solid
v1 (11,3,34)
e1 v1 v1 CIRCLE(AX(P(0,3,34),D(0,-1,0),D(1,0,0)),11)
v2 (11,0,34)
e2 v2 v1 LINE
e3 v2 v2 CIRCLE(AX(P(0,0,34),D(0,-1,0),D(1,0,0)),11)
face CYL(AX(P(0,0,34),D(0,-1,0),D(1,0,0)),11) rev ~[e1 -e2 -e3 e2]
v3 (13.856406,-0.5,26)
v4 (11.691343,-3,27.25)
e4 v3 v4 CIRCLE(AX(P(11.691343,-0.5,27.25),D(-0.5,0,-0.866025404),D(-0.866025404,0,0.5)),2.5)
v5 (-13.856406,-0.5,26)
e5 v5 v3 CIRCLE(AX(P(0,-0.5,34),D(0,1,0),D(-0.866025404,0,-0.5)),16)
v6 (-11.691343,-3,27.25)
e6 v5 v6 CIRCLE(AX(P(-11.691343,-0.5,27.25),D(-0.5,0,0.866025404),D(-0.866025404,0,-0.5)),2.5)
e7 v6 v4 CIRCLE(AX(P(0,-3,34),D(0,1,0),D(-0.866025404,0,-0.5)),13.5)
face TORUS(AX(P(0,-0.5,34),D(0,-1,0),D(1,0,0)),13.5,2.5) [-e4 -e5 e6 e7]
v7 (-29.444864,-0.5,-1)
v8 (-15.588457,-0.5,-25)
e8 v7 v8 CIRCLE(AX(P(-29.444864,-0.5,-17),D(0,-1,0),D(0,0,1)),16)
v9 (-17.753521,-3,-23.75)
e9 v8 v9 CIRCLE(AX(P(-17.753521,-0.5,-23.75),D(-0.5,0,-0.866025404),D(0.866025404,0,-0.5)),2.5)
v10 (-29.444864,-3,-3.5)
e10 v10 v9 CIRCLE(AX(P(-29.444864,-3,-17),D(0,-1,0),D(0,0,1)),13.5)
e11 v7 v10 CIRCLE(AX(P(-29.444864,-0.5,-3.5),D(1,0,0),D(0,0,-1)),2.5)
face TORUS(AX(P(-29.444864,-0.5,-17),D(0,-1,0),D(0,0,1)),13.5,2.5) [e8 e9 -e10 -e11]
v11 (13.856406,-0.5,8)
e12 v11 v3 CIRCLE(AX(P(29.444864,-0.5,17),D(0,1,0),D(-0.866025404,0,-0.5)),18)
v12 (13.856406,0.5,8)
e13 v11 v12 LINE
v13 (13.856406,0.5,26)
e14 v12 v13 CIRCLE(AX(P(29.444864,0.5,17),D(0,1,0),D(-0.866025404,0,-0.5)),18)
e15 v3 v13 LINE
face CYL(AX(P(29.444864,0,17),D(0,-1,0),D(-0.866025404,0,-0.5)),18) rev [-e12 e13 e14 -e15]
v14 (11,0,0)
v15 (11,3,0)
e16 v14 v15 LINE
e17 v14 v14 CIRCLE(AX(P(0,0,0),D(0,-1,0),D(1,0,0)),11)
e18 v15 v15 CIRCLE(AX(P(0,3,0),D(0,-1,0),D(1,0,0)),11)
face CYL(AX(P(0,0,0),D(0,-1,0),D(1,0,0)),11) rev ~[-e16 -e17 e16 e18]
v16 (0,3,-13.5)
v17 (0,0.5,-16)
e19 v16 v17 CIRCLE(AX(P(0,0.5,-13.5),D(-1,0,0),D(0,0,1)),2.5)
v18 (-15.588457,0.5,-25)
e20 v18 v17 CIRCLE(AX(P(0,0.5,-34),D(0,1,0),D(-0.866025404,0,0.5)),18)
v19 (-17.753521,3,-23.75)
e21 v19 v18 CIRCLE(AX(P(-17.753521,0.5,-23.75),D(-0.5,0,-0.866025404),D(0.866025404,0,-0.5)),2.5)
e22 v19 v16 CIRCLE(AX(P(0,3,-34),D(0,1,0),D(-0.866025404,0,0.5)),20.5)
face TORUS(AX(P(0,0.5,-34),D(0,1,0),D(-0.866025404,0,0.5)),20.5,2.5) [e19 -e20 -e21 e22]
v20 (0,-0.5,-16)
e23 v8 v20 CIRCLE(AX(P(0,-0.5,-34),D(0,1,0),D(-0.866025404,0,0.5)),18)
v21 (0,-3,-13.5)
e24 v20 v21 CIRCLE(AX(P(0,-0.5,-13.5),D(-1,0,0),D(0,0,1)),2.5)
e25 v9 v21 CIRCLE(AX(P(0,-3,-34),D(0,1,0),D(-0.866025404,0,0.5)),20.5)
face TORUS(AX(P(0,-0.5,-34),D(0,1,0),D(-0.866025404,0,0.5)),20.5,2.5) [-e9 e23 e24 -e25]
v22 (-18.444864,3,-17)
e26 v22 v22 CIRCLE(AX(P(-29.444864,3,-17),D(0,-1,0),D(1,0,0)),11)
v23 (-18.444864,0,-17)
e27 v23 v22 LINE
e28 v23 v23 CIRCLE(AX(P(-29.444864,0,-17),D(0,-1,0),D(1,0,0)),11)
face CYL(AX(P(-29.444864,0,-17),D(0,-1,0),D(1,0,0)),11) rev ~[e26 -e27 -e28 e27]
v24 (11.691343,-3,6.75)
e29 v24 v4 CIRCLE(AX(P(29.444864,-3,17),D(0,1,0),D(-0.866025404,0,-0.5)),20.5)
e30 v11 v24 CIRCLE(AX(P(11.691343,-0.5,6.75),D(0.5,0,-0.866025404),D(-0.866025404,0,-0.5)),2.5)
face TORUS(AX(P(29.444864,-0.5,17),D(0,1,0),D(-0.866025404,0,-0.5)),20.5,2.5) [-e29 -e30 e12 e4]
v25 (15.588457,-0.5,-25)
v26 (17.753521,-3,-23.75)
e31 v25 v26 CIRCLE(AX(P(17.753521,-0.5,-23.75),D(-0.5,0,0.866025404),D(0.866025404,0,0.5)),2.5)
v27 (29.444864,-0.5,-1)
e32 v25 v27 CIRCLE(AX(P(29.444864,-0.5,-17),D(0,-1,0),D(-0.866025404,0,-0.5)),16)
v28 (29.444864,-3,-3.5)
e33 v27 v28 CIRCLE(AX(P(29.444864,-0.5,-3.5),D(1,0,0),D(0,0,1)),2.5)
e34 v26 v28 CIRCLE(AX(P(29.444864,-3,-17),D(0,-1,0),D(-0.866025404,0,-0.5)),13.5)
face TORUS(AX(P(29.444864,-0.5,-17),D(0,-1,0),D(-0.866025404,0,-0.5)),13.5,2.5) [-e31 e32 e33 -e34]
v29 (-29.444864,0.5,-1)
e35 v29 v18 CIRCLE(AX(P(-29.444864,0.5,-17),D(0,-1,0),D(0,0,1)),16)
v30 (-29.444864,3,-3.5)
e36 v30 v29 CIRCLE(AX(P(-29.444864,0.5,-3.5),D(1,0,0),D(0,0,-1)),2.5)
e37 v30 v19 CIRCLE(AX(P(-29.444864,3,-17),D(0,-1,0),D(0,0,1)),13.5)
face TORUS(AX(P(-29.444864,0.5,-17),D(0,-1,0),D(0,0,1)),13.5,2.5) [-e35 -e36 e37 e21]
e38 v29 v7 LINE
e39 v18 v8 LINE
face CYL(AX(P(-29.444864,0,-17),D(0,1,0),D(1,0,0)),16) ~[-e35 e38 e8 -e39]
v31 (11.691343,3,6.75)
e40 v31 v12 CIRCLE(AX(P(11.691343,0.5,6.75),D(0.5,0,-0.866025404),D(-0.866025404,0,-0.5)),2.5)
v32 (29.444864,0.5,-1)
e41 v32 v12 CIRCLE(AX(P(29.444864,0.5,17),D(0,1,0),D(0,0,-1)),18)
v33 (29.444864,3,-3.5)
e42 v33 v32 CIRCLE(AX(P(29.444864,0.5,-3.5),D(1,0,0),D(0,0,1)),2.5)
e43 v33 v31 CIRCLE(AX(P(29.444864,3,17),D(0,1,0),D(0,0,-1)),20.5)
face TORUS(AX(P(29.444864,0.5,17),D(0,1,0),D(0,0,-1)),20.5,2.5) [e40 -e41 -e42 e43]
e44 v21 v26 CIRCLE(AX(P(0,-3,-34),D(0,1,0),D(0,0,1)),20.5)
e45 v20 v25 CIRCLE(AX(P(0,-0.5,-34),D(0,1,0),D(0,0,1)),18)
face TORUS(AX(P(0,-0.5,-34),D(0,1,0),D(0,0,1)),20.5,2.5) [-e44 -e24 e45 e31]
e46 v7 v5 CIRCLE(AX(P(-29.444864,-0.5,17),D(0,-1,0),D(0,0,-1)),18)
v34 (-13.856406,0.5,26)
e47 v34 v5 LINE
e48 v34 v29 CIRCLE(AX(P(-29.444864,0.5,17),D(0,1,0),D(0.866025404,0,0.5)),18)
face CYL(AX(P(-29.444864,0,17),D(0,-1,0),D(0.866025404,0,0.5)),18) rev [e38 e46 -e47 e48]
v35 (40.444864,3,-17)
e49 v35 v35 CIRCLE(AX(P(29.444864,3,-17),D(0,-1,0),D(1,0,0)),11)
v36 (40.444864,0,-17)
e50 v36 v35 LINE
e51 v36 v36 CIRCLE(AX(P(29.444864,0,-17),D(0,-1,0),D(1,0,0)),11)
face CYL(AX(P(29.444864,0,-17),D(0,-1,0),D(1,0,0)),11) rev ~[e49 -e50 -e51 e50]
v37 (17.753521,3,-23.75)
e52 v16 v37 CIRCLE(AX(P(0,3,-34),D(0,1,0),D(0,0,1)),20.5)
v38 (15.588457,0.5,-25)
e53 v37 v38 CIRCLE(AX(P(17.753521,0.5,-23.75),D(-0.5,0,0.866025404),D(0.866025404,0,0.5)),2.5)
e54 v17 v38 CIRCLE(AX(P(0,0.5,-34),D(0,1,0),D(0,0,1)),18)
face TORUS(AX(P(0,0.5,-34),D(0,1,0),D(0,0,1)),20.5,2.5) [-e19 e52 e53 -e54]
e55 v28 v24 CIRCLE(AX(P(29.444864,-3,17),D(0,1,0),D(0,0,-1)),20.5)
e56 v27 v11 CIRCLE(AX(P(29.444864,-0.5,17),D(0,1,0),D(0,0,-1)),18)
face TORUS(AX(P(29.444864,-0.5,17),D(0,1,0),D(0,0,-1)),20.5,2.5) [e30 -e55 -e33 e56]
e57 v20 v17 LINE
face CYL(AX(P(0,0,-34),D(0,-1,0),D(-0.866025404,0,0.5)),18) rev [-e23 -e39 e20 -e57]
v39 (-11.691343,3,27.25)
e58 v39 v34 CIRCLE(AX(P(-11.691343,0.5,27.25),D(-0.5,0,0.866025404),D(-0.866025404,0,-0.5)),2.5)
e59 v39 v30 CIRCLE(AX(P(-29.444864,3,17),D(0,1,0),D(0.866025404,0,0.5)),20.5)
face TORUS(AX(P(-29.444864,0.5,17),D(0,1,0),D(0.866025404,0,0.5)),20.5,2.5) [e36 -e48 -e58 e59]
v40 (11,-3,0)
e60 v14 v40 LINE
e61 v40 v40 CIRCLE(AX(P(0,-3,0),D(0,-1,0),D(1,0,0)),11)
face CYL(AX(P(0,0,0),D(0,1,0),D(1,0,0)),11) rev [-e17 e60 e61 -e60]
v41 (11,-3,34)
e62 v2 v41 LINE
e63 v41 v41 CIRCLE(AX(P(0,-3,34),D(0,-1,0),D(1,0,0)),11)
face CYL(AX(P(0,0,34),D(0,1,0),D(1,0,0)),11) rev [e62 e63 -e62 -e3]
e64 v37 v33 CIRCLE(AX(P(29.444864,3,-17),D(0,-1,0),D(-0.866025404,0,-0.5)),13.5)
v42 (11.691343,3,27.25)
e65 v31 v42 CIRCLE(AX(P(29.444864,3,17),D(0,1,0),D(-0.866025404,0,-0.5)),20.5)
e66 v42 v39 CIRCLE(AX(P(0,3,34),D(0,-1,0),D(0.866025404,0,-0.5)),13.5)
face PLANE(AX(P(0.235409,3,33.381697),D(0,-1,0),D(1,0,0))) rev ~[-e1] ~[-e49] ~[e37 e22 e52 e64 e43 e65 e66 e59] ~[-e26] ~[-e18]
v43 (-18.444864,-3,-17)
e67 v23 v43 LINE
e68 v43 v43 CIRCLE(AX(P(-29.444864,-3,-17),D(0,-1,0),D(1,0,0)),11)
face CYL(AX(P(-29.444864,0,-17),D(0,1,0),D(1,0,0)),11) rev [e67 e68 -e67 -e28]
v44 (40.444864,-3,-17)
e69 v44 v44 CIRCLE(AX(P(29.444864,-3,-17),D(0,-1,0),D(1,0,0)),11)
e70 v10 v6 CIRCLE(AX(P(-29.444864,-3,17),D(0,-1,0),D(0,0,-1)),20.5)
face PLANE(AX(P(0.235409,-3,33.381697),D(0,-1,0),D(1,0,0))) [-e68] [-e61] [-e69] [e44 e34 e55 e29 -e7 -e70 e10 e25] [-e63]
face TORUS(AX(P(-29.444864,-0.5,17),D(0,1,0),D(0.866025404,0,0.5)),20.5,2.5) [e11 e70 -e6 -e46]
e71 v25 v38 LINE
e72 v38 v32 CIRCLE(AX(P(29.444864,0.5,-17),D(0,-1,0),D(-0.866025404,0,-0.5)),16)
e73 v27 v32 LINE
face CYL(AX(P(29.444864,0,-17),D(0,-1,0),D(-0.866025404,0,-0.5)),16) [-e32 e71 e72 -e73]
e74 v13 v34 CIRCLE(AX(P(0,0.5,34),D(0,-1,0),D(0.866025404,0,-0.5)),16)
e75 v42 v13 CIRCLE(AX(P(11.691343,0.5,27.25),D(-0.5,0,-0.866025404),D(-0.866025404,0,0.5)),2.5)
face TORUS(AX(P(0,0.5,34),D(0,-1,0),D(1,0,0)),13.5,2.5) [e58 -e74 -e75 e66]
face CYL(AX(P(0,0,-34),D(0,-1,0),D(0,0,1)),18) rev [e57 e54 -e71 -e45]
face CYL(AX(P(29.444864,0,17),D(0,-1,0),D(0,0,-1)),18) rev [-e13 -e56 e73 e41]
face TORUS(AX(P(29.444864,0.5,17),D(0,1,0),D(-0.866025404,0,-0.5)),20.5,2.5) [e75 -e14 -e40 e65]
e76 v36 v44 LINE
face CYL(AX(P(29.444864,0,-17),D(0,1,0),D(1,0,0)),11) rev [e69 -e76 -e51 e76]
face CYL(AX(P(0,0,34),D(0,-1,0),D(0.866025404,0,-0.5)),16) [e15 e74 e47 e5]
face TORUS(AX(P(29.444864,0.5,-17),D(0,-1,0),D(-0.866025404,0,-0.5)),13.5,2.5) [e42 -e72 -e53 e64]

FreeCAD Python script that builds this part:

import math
import FreeCAD as App
import Part
import Sketcher
Q = App.Units.Quantity


def edges_at(feature, points):
    """Names of the edges that pass closest to the given points."""
    edges = feature.Shape.Edges
    near = lambda p: min(range(len(edges)), key=lambda i: edges[i].distToShape(Part.Vertex(*p))[0])
    return sorted({f"Edge{near(p) + 1}" for p in points})

doc = App.newDocument("Part")
body = doc.addObject("PartDesign::Body", "Body")

# Sketch on XZ plane
sketch1 = body.newObject("Sketcher::SketchObject", "Sketch")
sketch1.AttachmentSupport = (doc.getObject("XZ_Plane"), [""])
sketch1.MapMode = "FlatFace"
sketch1.addGeometry([
    Part.ArcOfCircle(Part.Circle(App.Vector(0, 34, 0), App.Vector(0, 0, 1), 16), math.radians(-30), math.radians(0)),  # 0
    Part.ArcOfCircle(Part.Circle(App.Vector(0, 34, 0), App.Vector(0, 0, 1), 16), math.radians(0), math.radians(210)),  # 1
    Part.ArcOfCircle(Part.Circle(App.Vector(-29, 17, 0), App.Vector(0, 0, 1), 18), math.radians(-30), math.radians(30)),  # 2
    Part.ArcOfCircle(Part.Circle(App.Vector(-29, 17, 0), App.Vector(0, 0, 1), 18), math.radians(-90), math.radians(-30)),  # 3
    Part.ArcOfCircle(Part.Circle(App.Vector(-29, -17, 0), App.Vector(0, 0, 1), 16), math.radians(90), math.radians(330)),  # 4
    Part.ArcOfCircle(Part.Circle(App.Vector(0, -34, 0), App.Vector(0, 0, 1), 18), math.radians(90), math.radians(150)),  # 5
    Part.ArcOfCircle(Part.Circle(App.Vector(0, -34, 0), App.Vector(0, 0, 1), 18), math.radians(30), math.radians(90)),  # 6
    Part.ArcOfCircle(Part.Circle(App.Vector(29, -17, 0), App.Vector(0, 0, 1), 16), math.radians(-150), math.radians(90)),  # 7
    Part.ArcOfCircle(Part.Circle(App.Vector(29, 17, 0), App.Vector(0, 0, 1), 18), math.radians(-150), math.radians(-90)),  # 8
    Part.ArcOfCircle(Part.Circle(App.Vector(29, 17, 0), App.Vector(0, 0, 1), 18), math.radians(150), math.radians(210)),  # 9
    Part.Circle(App.Vector(-29, -17, 0), App.Vector(0, 0, 1), 11),  # 10
    Part.Circle(App.Vector(29, -17, 0), App.Vector(0, 0, 1), 11),  # 11
    Part.Circle(App.Vector(0, 0, 0), App.Vector(0, 0, 1), 11),  # 12
    Part.Circle(App.Vector(0, 34, 0), App.Vector(0, 0, 1), 11),  # 13
], False)
sketch1.addConstraint([
    Sketcher.Constraint("Tangent", 0, 2, 1, 1),
    Sketcher.Constraint("Tangent", 1, 2, 2, 2),
    Sketcher.Constraint("Tangent", 2, 1, 3, 2),
    Sketcher.Constraint("Tangent", 3, 1, 4, 1),
    Sketcher.Constraint("Tangent", 4, 2, 5, 2),
    Sketcher.Constraint("Tangent", 5, 1, 6, 2),
    Sketcher.Constraint("Tangent", 6, 1, 7, 1),
    Sketcher.Constraint("Tangent", 7, 2, 8, 2),
    Sketcher.Constraint("Tangent", 8, 1, 9, 2),
    Sketcher.Constraint("Tangent", 9, 1, 0, 1),
    Sketcher.Constraint("Coincident", 12, 3, -1, 1),
    Sketcher.Constraint("Coincident", 10, 3, 4, 3),
    Sketcher.Constraint("Coincident", 11, 3, 7, 3),
    Sketcher.Constraint("Coincident", 13, 3, 0, 3),
    Sketcher.Constraint("Equal", 0, 1),
    Sketcher.Constraint("Equal", 2, 3),
    Sketcher.Constraint("Equal", 1, 4),
    Sketcher.Constraint("Equal", 3, 5),
    Sketcher.Constraint("Equal", 5, 6),
    Sketcher.Constraint("Equal", 4, 7),
    Sketcher.Constraint("Equal", 6, 8),
    Sketcher.Constraint("Equal", 8, 9),
    Sketcher.Constraint("Equal", 10, 11),
    Sketcher.Constraint("Equal", 11, 12),
    Sketcher.Constraint("Equal", 12, 13),
    Sketcher.Constraint("Symmetric", 0, 3, 5, 3, -1, 1),
    Sketcher.Constraint("Symmetric", 4, 3, 7, 3, -2),
    Sketcher.Constraint("PointOnObject", 5, 1, -2),
    Sketcher.Constraint("Horizontal", 13, 3, 0, 2),
    Sketcher.Constraint("Horizontal", 2, 1, 8, 1),
    Sketcher.Constraint("Vertical", 3, 3, 4, 3),
    Sketcher.Constraint("Vertical", 1, 2, 2, 1),
    Sketcher.Constraint("Diameter", 10, Q("22 mm")),
    Sketcher.Constraint("Radius", 0, Q("16 mm")),
    Sketcher.Constraint("Radius", 2, Q("18 mm")),
    Sketcher.Constraint("DistanceY", -1, 1, 0, 3, Q("34 mm")),
])
pad1 = body.newObject("PartDesign::Pad", "Pad")
pad1.Profile = sketch1
pad1.Length = 6
pad1.Midplane = True
doc.recompute()

fillet = body.newObject("PartDesign::Fillet", "Fillet")
fillet.Base = (pad1, edges_at(pad1, [(-4.141, -3, 49.455)]))
fillet.Radius = 2.5
doc.recompute()

fillet2 = body.newObject("PartDesign::Fillet", "Fillet001")
fillet2.Base = (fillet, edges_at(fillet, [(11.445, 3, 17)]))
fillet2.Radius = 2.5

doc.recompute()
